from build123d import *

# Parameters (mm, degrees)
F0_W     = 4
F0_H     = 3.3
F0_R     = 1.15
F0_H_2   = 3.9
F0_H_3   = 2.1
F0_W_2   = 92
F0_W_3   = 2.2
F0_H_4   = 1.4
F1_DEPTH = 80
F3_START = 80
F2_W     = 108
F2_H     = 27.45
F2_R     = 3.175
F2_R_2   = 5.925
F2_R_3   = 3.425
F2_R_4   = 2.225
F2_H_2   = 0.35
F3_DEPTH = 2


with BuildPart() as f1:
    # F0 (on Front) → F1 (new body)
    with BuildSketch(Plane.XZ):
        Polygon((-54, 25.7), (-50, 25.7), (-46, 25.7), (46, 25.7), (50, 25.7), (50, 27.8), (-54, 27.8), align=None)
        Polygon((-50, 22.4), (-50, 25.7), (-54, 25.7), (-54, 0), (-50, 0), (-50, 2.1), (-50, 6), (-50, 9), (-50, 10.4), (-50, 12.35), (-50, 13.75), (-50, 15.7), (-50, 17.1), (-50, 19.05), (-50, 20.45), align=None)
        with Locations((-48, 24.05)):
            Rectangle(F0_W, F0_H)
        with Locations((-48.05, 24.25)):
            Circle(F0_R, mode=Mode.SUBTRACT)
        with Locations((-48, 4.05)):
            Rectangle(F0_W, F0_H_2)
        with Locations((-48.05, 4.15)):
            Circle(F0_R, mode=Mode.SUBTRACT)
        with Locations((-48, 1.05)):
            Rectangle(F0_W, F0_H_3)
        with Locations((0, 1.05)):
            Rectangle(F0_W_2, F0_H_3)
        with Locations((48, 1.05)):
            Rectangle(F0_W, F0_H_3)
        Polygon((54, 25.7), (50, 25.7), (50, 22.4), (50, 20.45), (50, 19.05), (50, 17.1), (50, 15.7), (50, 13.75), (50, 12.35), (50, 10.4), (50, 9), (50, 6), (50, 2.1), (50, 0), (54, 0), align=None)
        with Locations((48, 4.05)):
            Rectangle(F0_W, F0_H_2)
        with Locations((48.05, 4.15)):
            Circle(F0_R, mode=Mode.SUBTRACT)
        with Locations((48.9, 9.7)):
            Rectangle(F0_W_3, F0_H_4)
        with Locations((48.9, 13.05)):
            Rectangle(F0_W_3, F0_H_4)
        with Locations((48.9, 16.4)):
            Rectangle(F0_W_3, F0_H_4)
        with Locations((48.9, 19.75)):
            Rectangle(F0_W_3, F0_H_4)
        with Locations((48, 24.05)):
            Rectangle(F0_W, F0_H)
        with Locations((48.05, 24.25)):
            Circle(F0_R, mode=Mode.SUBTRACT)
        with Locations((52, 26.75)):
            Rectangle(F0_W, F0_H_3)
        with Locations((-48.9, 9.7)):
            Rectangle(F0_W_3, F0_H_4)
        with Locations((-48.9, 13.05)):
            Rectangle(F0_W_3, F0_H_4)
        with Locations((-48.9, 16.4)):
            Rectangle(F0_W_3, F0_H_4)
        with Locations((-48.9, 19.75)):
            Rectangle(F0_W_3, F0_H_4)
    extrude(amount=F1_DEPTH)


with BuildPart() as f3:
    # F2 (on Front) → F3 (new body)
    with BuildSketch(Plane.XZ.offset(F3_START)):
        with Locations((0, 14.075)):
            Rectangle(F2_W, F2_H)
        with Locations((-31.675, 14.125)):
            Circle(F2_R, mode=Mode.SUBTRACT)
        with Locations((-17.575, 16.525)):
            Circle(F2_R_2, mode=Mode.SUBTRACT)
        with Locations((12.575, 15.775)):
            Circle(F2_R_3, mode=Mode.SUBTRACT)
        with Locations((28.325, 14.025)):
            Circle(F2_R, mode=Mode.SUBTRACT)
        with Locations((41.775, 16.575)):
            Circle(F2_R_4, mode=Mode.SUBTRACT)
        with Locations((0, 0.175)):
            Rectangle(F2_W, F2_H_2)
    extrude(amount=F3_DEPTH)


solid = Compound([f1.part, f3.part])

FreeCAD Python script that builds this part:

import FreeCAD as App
import Part
import Sketcher
from FreeCAD import Vector
Q = App.Units.Quantity

doc = App.newDocument("Part")
body = doc.addObject("PartDesign::Body", "Body")

# Sketch on XZ plane
sketch1 = body.newObject("Sketcher::SketchObject", "Sketch")
sketch1.AttachmentSupport = (doc.getObject("XZ_Plane"), [""])
sketch1.MapMode = "FlatFace"
sketch1.addGeometry(Part.LineSegment(Vector(54, 0, 0), Vector(54, 27.8, 0)), False)
sketch1.addGeometry(Part.LineSegment(Vector(54, 27.8, 0), Vector(-54, 27.8, 0)), False)
sketch1.addGeometry(Part.LineSegment(Vector(-54, 27.8, 0), Vector(-54, 0, 0)), False)
sketch1.addGeometry(Part.LineSegment(Vector(-54, 0, 0), Vector(54, 0, 0)), False)
sketch1.addGeometry(Part.Circle(Vector(-48, 4.2, 0), Vector(0, 0, 1), 1.1), False)
sketch1.addGeometry(Part.Circle(Vector(48, 4.2, 0), Vector(0, 0, 1), 1.1), False)
sketch1.addGeometry(Part.Circle(Vector(-48, 24.2, 0), Vector(0, 0, 1), 1.1), False)
sketch1.addGeometry(Part.LineSegment(Vector(-46, 25.7, 0), Vector(46, 25.7, 0)), False)
sketch1.addGeometry(Part.LineSegment(Vector(46, 25.7, 0), Vector(46, 22.4, 0)), False)
sketch1.addGeometry(Part.LineSegment(Vector(46, 22.4, 0), Vector(50, 22.4, 0)), False)
sketch1.addGeometry(Part.LineSegment(Vector(50, 22.4, 0), Vector(50, 20.4, 0)), False)
sketch1.addGeometry(Part.LineSegment(Vector(50, 20.4, 0), Vector(47.8, 20.4, 0)), False)
sketch1.addGeometry(Part.LineSegment(Vector(47.8, 20.4, 0), Vector(47.8, 19.1, 0)), False)
sketch1.addGeometry(Part.LineSegment(Vector(47.8, 19.1, 0), Vector(50, 19.1, 0)), False)
sketch1.addGeometry(Part.LineSegment(Vector(50, 19.1, 0), Vector(50, 17.1, 0)), False)
sketch1.addGeometry(Part.LineSegment(Vector(50, 17.1, 0), Vector(47.8, 17.1, 0)), False)
sketch1.addGeometry(Part.LineSegment(Vector(47.8, 17.1, 0), Vector(47.8, 15.7, 0)), False)
sketch1.addGeometry(Part.LineSegment(Vector(47.8, 15.7, 0), Vector(50, 15.7, 0)), False)
sketch1.addGeometry(Part.LineSegment(Vector(50, 15.7, 0), Vector(50, 13.8, 0)), False)
sketch1.addGeometry(Part.LineSegment(Vector(50, 13.8, 0), Vector(47.8, 13.8, 0)), False)
sketch1.addGeometry(Part.LineSegment(Vector(47.8, 13.8, 0), Vector(47.8, 12.3, 0)), False)
sketch1.addGeometry(Part.LineSegment(Vector(47.8, 12.3, 0), Vector(50, 12.3, 0)), False)
sketch1.addGeometry(Part.LineSegment(Vector(50, 12.3, 0), Vector(50, 10.4, 0)), False)
sketch1.addGeometry(Part.LineSegment(Vector(50, 10.4, 0), Vector(47.8, 10.4, 0)), False)
sketch1.addGeometry(Part.LineSegment(Vector(47.8, 10.4, 0), Vector(47.8, 9, 0)), False)
sketch1.addGeometry(Part.LineSegment(Vector(47.8, 9, 0), Vector(50, 9, 0)), False)
sketch1.addGeometry(Part.LineSegment(Vector(50, 9, 0), Vector(50, 6, 0)), False)
sketch1.addGeometry(Part.LineSegment(Vector(50, 6, 0), Vector(46, 6, 0)), False)
sketch1.addGeometry(Part.LineSegment(Vector(46, 6, 0), Vector(46, 2.1, 0)), False)
sketch1.addGeometry(Part.LineSegment(Vector(46, 2.1, 0), Vector(-46, 2.1, 0)), False)
sketch1.addGeometry(Part.LineSegment(Vector(-46, 2.1, 0), Vector(-46, 6, 0)), False)
sketch1.addGeometry(Part.LineSegment(Vector(-46, 6, 0), Vector(-50, 6, 0)), False)
sketch1.addGeometry(Part.LineSegment(Vector(-50, 6, 0), Vector(-50, 9, 0)), False)
sketch1.addGeometry(Part.LineSegment(Vector(-50, 9, 0), Vector(-47.8, 9, 0)), False)
sketch1.addGeometry(Part.LineSegment(Vector(-47.8, 9, 0), Vector(-47.8, 10.4, 0)), False)
sketch1.addGeometry(Part.LineSegment(Vector(-47.8, 10.4, 0), Vector(-50, 10.4, 0)), False)
sketch1.addGeometry(Part.LineSegment(Vector(-50, 10.4, 0), Vector(-50, 12.3, 0)), False)
sketch1.addGeometry(Part.LineSegment(Vector(-50, 12.3, 0), Vector(-47.8, 12.3, 0)), False)
sketch1.addGeometry(Part.LineSegment(Vector(-47.8, 12.3, 0), Vector(-47.8, 13.8, 0)), False)
sketch1.addGeometry(Part.LineSegment(Vector(-47.8, 13.8, 0), Vector(-50, 13.8, 0)), False)
sketch1.addGeometry(Part.LineSegment(Vector(-50, 13.8, 0), Vector(-50, 15.7, 0)), False)
sketch1.addGeometry(Part.LineSegment(Vector(-50, 15.7, 0), Vector(-47.8, 15.7, 0)), False)
sketch1.addGeometry(Part.LineSegment(Vector(-47.8, 15.7, 0), Vector(-47.8, 17.1, 0)), False)
sketch1.addGeometry(Part.LineSegment(Vector(-47.8, 17.1, 0), Vector(-50, 17.1, 0)), False)
sketch1.addGeometry(Part.LineSegment(Vector(-50, 17.1, 0), Vector(-50, 19.1, 0)), False)
sketch1.addGeometry(Part.LineSegment(Vector(-50, 19.1, 0), Vector(-47.8, 19.1, 0)), False)
sketch1.addGeometry(Part.LineSegment(Vector(-47.8, 19.1, 0), Vector(-47.8, 20.4, 0)), False)
sketch1.addGeometry(Part.LineSegment(Vector(-47.8, 20.4, 0), Vector(-50, 20.4, 0)), False)
sketch1.addGeometry(Part.LineSegment(Vector(-50, 20.4, 0), Vector(-50, 22.4, 0)), False)
sketch1.addGeometry(Part.LineSegment(Vector(-50, 22.4, 0), Vector(-46, 22.4, 0)), False)
sketch1.addGeometry(Part.LineSegment(Vector(-46, 22.4, 0), Vector(-46, 25.7, 0)), False)
sketch1.addGeometry(Part.Circle(Vector(48, 24.2, 0), Vector(0, 0, 1), 1.1), False)
sketch1.addConstraint(Sketcher.Constraint("Coincident", 0, 2, 1, 1))
sketch1.addConstraint(Sketcher.Constraint("Coincident", 1, 2, 2, 1))
sketch1.addConstraint(Sketcher.Constraint("Coincident", 2, 2, 3, 1))
sketch1.addConstraint(Sketcher.Constraint("Coincident", 3, 2, 0, 1))
sketch1.addConstraint(Sketcher.Constraint("Coincident", 7, 2, 8, 1))
sketch1.addConstraint(Sketcher.Constraint("Coincident", 8, 2, 9, 1))
sketch1.addConstraint(Sketcher.Constraint("Coincident", 9, 2, 10, 1))
sketch1.addConstraint(Sketcher.Constraint("Coincident", 10, 2, 11, 1))
sketch1.addConstraint(Sketcher.Constraint("Coincident", 11, 2, 12, 1))
sketch1.addConstraint(Sketcher.Constraint("Coincident", 12, 2, 13, 1))
sketch1.addConstraint(Sketcher.Constraint("Coincident", 13, 2, 14, 1))
sketch1.addConstraint(Sketcher.Constraint("Coincident", 14, 2, 15, 1))
sketch1.addConstraint(Sketcher.Constraint("Coincident", 15, 2, 16, 1))
sketch1.addConstraint(Sketcher.Constraint("Coincident", 16, 2, 17, 1))
sketch1.addConstraint(Sketcher.Constraint("Coincident", 17, 2, 18, 1))
sketch1.addConstraint(Sketcher.Constraint("Coincident", 18, 2, 19, 1))
sketch1.addConstraint(Sketcher.Constraint("Coincident", 19, 2, 20, 1))
sketch1.addConstraint(Sketcher.Constraint("Coincident", 20, 2, 21, 1))
sketch1.addConstraint(Sketcher.Constraint("Coincident", 21, 2, 22, 1))
sketch1.addConstraint(Sketcher.Constraint("Coincident", 22, 2, 23, 1))
sketch1.addConstraint(Sketcher.Constraint("Coincident", 23, 2, 24, 1))
sketch1.addConstraint(Sketcher.Constraint("Coincident", 24, 2, 25, 1))
sketch1.addConstraint(Sketcher.Constraint("Coincident", 25, 2, 26, 1))
sketch1.addConstraint(Sketcher.Constraint("Coincident", 26, 2, 27, 1))
sketch1.addConstraint(Sketcher.Constraint("Coincident", 27, 2, 28, 1))
sketch1.addConstraint(Sketcher.Constraint("Coincident", 28, 2, 29, 1))
sketch1.addConstraint(Sketcher.Constraint("Coincident", 29, 2, 30, 1))
sketch1.addConstraint(Sketcher.Constraint("Coincident", 30, 2, 31, 1))
sketch1.addConstraint(Sketcher.Constraint("Coincident", 31, 2, 32, 1))
sketch1.addConstraint(Sketcher.Constraint("Coincident", 32, 2, 33, 1))
sketch1.addConstraint(Sketcher.Constraint("Coincident", 33, 2, 34, 1))
sketch1.addConstraint(Sketcher.Constraint("Coincident", 34, 2, 35, 1))
sketch1.addConstraint(Sketcher.Constraint("Coincident", 35, 2, 36, 1))
sketch1.addConstraint(Sketcher.Constraint("Coincident", 36, 2, 37, 1))
sketch1.addConstraint(Sketcher.Constraint("Coincident", 37, 2, 38, 1))
sketch1.addConstraint(Sketcher.Constraint("Coincident", 38, 2, 39, 1))
sketch1.addConstraint(Sketcher.Constraint("Coincident", 39, 2, 40, 1))
sketch1.addConstraint(Sketcher.Constraint("Coincident", 40, 2, 41, 1))
sketch1.addConstraint(Sketcher.Constraint("Coincident", 41, 2, 42, 1))
sketch1.addConstraint(Sketcher.Constraint("Coincident", 42, 2, 43, 1))
sketch1.addConstraint(Sketcher.Constraint("Coincident", 43, 2, 44, 1))
sketch1.addConstraint(Sketcher.Constraint("Coincident", 44, 2, 45, 1))
sketch1.addConstraint(Sketcher.Constraint("Coincident", 45, 2, 46, 1))
sketch1.addConstraint(Sketcher.Constraint("Coincident", 46, 2, 47, 1))
sketch1.addConstraint(Sketcher.Constraint("Coincident", 47, 2, 48, 1))
sketch1.addConstraint(Sketcher.Constraint("Coincident", 48, 2, 49, 1))
sketch1.addConstraint(Sketcher.Constraint("Coincident", 49, 2, 50, 1))
sketch1.addConstraint(Sketcher.Constraint("Coincident", 50, 2, 7, 1))
sketch1.addConstraint(Sketcher.Constraint("Vertical", 0))
sketch1.addConstraint(Sketcher.Constraint("Horizontal", 1))
sketch1.addConstraint(Sketcher.Constraint("Vertical", 2))
sketch1.addConstraint(Sketcher.Constraint("Horizontal", 3))
sketch1.addConstraint(Sketcher.Constraint("Horizontal", 7))
sketch1.addConstraint(Sketcher.Constraint("Vertical", 8))
sketch1.addConstraint(Sketcher.Constraint("Horizontal", 9))
sketch1.addConstraint(Sketcher.Constraint("Vertical", 10))
sketch1.addConstraint(Sketcher.Constraint("Horizontal", 11))
sketch1.addConstraint(Sketcher.Constraint("Vertical", 12))
sketch1.addConstraint(Sketcher.Constraint("Horizontal", 13))
sketch1.addConstraint(Sketcher.Constraint("Vertical", 14))
sketch1.addConstraint(Sketcher.Constraint("Horizontal", 15))
sketch1.addConstraint(Sketcher.Constraint("Vertical", 16))
sketch1.addConstraint(Sketcher.Constraint("Horizontal", 17))
sketch1.addConstraint(Sketcher.Constraint("Vertical", 18))
sketch1.addConstraint(Sketcher.Constraint("Horizontal", 19))
sketch1.addConstraint(Sketcher.Constraint("Vertical", 20))
sketch1.addConstraint(Sketcher.Constraint("Horizontal", 21))
sketch1.addConstraint(Sketcher.Constraint("Vertical", 22))
sketch1.addConstraint(Sketcher.Constraint("Horizontal", 23))
sketch1.addConstraint(Sketcher.Constraint("Vertical", 24))
sketch1.addConstraint(Sketcher.Constraint("Horizontal", 25))
sketch1.addConstraint(Sketcher.Constraint("Vertical", 26))
sketch1.addConstraint(Sketcher.Constraint("Horizontal", 27))
sketch1.addConstraint(Sketcher.Constraint("Vertical", 28))
sketch1.addConstraint(Sketcher.Constraint("Horizontal", 29))
sketch1.addConstraint(Sketcher.Constraint("Vertical", 30))
sketch1.addConstraint(Sketcher.Constraint("Horizontal", 31))
sketch1.addConstraint(Sketcher.Constraint("Vertical", 32))
sketch1.addConstraint(Sketcher.Constraint("Horizontal", 33))
sketch1.addConstraint(Sketcher.Constraint("Vertical", 34))
sketch1.addConstraint(Sketcher.Constraint("Horizontal", 35))
sketch1.addConstraint(Sketcher.Constraint("Vertical", 36))
sketch1.addConstraint(Sketcher.Constraint("Horizontal", 37))
sketch1.addConstraint(Sketcher.Constraint("Vertical", 38))
sketch1.addConstraint(Sketcher.Constraint("Horizontal", 39))
sketch1.addConstraint(Sketcher.Constraint("Vertical", 40))
sketch1.addConstraint(Sketcher.Constraint("Horizontal", 41))
sketch1.addConstraint(Sketcher.Constraint("Vertical", 42))
sketch1.addConstraint(Sketcher.Constraint("Horizontal", 43))
sketch1.addConstraint(Sketcher.Constraint("Vertical", 44))
sketch1.addConstraint(Sketcher.Constraint("Horizontal", 45))
sketch1.addConstraint(Sketcher.Constraint("Vertical", 46))
sketch1.addConstraint(Sketcher.Constraint("Horizontal", 47))
sketch1.addConstraint(Sketcher.Constraint("Vertical", 48))
sketch1.addConstraint(Sketcher.Constraint("Horizontal", 49))
sketch1.addConstraint(Sketcher.Constraint("Vertical", 50))
sketch1.addConstraint(Sketcher.Constraint("Equal", 4, 5))
sketch1.addConstraint(Sketcher.Constraint("Equal", 5, 6))
sketch1.addConstraint(Sketcher.Constraint("Equal", 6, 51))
sketch1.addConstraint(Sketcher.Constraint("Symmetric", 2, 2, 3, 2, -1, 1))
sketch1.addConstraint(Sketcher.Constraint("Symmetric", 4, 3, 5, 3, -2))
sketch1.addConstraint(Sketcher.Constraint("Symmetric", 6, 3, 51, 3, -2))
sketch1.addConstraint(Sketcher.Constraint("Symmetric", 27, 2, 30, 2, -2))
sketch1.addConstraint(Sketcher.Constraint("Symmetric", 25, 2, 32, 2, -2))
sketch1.addConstraint(Sketcher.Constraint("Symmetric", 23, 2, 34, 2, -2))
sketch1.addConstraint(Sketcher.Constraint("Symmetric", 21, 2, 36, 2, -2))
sketch1.addConstraint(Sketcher.Constraint("Symmetric", 19, 2, 38, 2, -2))
sketch1.addConstraint(Sketcher.Constraint("Symmetric", 17, 2, 40, 2, -2))
sketch1.addConstraint(Sketcher.Constraint("Symmetric", 15, 2, 42, 2, -2))
sketch1.addConstraint(Sketcher.Constraint("Symmetric", 13, 2, 44, 2, -2))
sketch1.addConstraint(Sketcher.Constraint("Symmetric", 11, 2, 46, 2, -2))
sketch1.addConstraint(Sketcher.Constraint("Symmetric", 9, 2, 48, 2, -2))
sketch1.addConstraint(Sketcher.Constraint("Vertical", 4, 3, 6, 3))
sketch1.addConstraint(Sketcher.Constraint("Vertical", 10, 2, 13, 2))
sketch1.addConstraint(Sketcher.Constraint("Vertical", 12, 2, 15, 2))
sketch1.addConstraint(Sketcher.Constraint("Vertical", 14, 2, 17, 2))
sketch1.addConstraint(Sketcher.Constraint("Vertical", 16, 2, 19, 2))
sketch1.addConstraint(Sketcher.Constraint("Vertical", 18, 2, 21, 2))
sketch1.addConstraint(Sketcher.Constraint("Vertical", 20, 2, 23, 2))
sketch1.addConstraint(Sketcher.Constraint("Vertical", 22, 2, 25, 2))
sketch1.addConstraint(Sketcher.Constraint("Vertical", 8, 2, 27, 2))
sketch1.addConstraint(Sketcher.Constraint("Vertical", 30, 2, 49, 2))
sketch1.addConstraint(Sketcher.Constraint("Equal", 10, 14))
sketch1.addConstraint(Sketcher.Constraint("Equal", 12, 16))
sketch1.addConstraint(Sketcher.Constraint("Equal", 14, 18))
sketch1.addConstraint(Sketcher.Constraint("Equal", 16, 20))
sketch1.addConstraint(Sketcher.Constraint("Equal", 18, 22))
sketch1.addConstraint(Sketcher.Constraint("Equal", 20, 24))
sketch1.addConstraint(Sketcher.Constraint("Diameter", 4, Q("2.3 mm")))
sketch1.addConstraint(Sketcher.Constraint("DistanceX", 1, 2, 1, 1, Q("108 mm")))
sketch1.addConstraint(Sketcher.Constraint("DistanceX", 7, 1, 7, 2, Q("92 mm")))
sketch1.addConstraint(Sketcher.Constraint("DistanceX", 9, 1, 9, 2, Q("4 mm")))
sketch1.addConstraint(Sketcher.Constraint("DistanceY", 26, 2, 26, 1, Q("3 mm")))
sketch1.addConstraint(Sketcher.Constraint("DistanceX", 11, 2, 11, 1, Q("2.2 mm")))
sketch1.addConstraint(Sketcher.Constraint("DistanceY", 0, 1, 0, 2, Q("27.8 mm")))
sketch1.addConstraint(Sketcher.Constraint("DistanceY", 8, 2, 8, 1, Q("3.3 mm")))
sketch1.addConstraint(Sketcher.Constraint("DistanceY", 12, 2, 12, 1, Q("1.4 mm")))
sketch1.addConstraint(Sketcher.Constraint("DistanceY", 28, 2, 28, 1, Q("3.9 mm")))
sketch1.addConstraint(Sketcher.Constraint("DistanceY", -1, 1, 24, 2, Q("9 mm")))
sketch1.addConstraint(Sketcher.Constraint("DistanceY", 10, 2, 10, 1, Q("1.95 mm")))
sketch1.addConstraint(Sketcher.Constraint("DistanceX", 4, 3, 5, 3, Q("96.1 mm")))
sketch1.addConstraint(Sketcher.Constraint("DistanceY", 4, 3, 6, 3, Q("20.1 mm")))
sketch1.addConstraint(Sketcher.Constraint("DistanceY", 10, 2, 51, 3, Q("3.8 mm")))
pad1 = body.newObject("PartDesign::Pad", "Pad")
pad1.Profile = sketch1
pad1.Length = 80
body2 = doc.addObject("PartDesign::Body", "Body001")

# Sketch on XZ plane
sketch2 = body2.newObject("Sketcher::SketchObject", "Sketch001")
sketch2.AttachmentSupport = (doc.getObject("XZ_Plane001"), [""])
sketch2.MapMode = "FlatFace"
sketch2.AttachmentOffset = App.Placement(Vector(0, 0, 80), App.Rotation())
sketch2.addGeometry(Part.LineSegment(Vector(-54, 27.8, 0), Vector(-54, 0, 0)), False)
sketch2.addGeometry(Part.LineSegment(Vector(-54, 0, 0), Vector(54, 0, 0)), False)
sketch2.addGeometry(Part.LineSegment(Vector(54, 0, 0), Vector(54, 27.8, 0)), False)
sketch2.addGeometry(Part.LineSegment(Vector(54, 27.8, 0), Vector(-54, 27.8, 0)), False)
sketch2.addGeometry(Part.Circle(Vector(-31.7, 14.1, 0), Vector(0, 0, 1), 3.2), False)
sketch2.addGeometry(Part.Circle(Vector(12.6, 15.8, 0), Vector(0, 0, 1), 3.4), False)
sketch2.addGeometry(Part.Circle(Vector(28.3, 14, 0), Vector(0, 0, 1), 3.2), False)
sketch2.addGeometry(Part.Circle(Vector(-17.6, 16.5, 0), Vector(0, 0, 1), 5.9), False)
sketch2.addGeometry(Part.Circle(Vector(41.8, 16.6, 0), Vector(0, 0, 1), 2.2), False)
sketch2.addConstraint(Sketcher.Constraint("Coincident", 0, 2, 1, 1))
sketch2.addConstraint(Sketcher.Constraint("Coincident", 1, 2, 2, 1))
sketch2.addConstraint(Sketcher.Constraint("Coincident", 2, 2, 3, 1))
sketch2.addConstraint(Sketcher.Constraint("Coincident", 3, 2, 0, 1))
sketch2.addConstraint(Sketcher.Constraint("Vertical", 0))
sketch2.addConstraint(Sketcher.Constraint("Horizontal", 1))
sketch2.addConstraint(Sketcher.Constraint("Vertical", 2))
sketch2.addConstraint(Sketcher.Constraint("Horizontal", 3))
sketch2.addConstraint(Sketcher.Constraint("Equal", 4, 6))
sketch2.addConstraint(Sketcher.Constraint("Symmetric", 0, 2, 1, 2, -1, 1))
sketch2.addConstraint(Sketcher.Constraint("Diameter", 4, Q("6.35 mm")))
sketch2.addConstraint(Sketcher.Constraint("Diameter", 5, Q("6.85 mm")))
sketch2.addConstraint(Sketcher.Constraint("Diameter", 7, Q("11.85 mm")))
sketch2.addConstraint(Sketcher.Constraint("Diameter", 8, Q("4.45 mm")))
sketch2.addConstraint(Sketcher.Constraint("DistanceX", 1, 1, 1, 2, Q("108 mm")))
sketch2.addConstraint(Sketcher.Constraint("DistanceY", 0, 2, 0, 1, Q("27.8 mm")))
sketch2.addConstraint(Sketcher.Constraint("DistanceX", 4, 3, 6, 3, Q("60 mm")))
sketch2.addConstraint(Sketcher.Constraint("DistanceY", 6, 3, 4, 3, Q("0.1 mm")))
sketch2.addConstraint(Sketcher.Constraint("DistanceX", 4, 3, 7, 3, Q("14.1 mm")))
sketch2.addConstraint(Sketcher.Constraint("DistanceY", 4, 3, 7, 3, Q("2.4 mm")))
sketch2.addConstraint(Sketcher.Constraint("DistanceX", 5, 3, 8, 3, Q("29.2 mm")))
sketch2.addConstraint(Sketcher.Constraint("DistanceY", 5, 3, 8, 3, Q("0.8 mm")))
sketch2.addConstraint(Sketcher.Constraint("DistanceX", 4, 3, 5, 3, Q("44.25 mm")))
sketch2.addConstraint(Sketcher.Constraint("DistanceY", 4, 3, 5, 3, Q("1.65 mm")))
sketch2.addConstraint(Sketcher.Constraint("DistanceX", 4, 3, -1, 1, Q("31.675 mm")))
sketch2.addConstraint(Sketcher.Constraint("DistanceY", -1, 1, 4, 3, Q("14.125 mm")))
pad2 = body2.newObject("PartDesign::Pad", "Pad001")
pad2.Profile = sketch2
pad2.Length = 2

doc.recompute()
